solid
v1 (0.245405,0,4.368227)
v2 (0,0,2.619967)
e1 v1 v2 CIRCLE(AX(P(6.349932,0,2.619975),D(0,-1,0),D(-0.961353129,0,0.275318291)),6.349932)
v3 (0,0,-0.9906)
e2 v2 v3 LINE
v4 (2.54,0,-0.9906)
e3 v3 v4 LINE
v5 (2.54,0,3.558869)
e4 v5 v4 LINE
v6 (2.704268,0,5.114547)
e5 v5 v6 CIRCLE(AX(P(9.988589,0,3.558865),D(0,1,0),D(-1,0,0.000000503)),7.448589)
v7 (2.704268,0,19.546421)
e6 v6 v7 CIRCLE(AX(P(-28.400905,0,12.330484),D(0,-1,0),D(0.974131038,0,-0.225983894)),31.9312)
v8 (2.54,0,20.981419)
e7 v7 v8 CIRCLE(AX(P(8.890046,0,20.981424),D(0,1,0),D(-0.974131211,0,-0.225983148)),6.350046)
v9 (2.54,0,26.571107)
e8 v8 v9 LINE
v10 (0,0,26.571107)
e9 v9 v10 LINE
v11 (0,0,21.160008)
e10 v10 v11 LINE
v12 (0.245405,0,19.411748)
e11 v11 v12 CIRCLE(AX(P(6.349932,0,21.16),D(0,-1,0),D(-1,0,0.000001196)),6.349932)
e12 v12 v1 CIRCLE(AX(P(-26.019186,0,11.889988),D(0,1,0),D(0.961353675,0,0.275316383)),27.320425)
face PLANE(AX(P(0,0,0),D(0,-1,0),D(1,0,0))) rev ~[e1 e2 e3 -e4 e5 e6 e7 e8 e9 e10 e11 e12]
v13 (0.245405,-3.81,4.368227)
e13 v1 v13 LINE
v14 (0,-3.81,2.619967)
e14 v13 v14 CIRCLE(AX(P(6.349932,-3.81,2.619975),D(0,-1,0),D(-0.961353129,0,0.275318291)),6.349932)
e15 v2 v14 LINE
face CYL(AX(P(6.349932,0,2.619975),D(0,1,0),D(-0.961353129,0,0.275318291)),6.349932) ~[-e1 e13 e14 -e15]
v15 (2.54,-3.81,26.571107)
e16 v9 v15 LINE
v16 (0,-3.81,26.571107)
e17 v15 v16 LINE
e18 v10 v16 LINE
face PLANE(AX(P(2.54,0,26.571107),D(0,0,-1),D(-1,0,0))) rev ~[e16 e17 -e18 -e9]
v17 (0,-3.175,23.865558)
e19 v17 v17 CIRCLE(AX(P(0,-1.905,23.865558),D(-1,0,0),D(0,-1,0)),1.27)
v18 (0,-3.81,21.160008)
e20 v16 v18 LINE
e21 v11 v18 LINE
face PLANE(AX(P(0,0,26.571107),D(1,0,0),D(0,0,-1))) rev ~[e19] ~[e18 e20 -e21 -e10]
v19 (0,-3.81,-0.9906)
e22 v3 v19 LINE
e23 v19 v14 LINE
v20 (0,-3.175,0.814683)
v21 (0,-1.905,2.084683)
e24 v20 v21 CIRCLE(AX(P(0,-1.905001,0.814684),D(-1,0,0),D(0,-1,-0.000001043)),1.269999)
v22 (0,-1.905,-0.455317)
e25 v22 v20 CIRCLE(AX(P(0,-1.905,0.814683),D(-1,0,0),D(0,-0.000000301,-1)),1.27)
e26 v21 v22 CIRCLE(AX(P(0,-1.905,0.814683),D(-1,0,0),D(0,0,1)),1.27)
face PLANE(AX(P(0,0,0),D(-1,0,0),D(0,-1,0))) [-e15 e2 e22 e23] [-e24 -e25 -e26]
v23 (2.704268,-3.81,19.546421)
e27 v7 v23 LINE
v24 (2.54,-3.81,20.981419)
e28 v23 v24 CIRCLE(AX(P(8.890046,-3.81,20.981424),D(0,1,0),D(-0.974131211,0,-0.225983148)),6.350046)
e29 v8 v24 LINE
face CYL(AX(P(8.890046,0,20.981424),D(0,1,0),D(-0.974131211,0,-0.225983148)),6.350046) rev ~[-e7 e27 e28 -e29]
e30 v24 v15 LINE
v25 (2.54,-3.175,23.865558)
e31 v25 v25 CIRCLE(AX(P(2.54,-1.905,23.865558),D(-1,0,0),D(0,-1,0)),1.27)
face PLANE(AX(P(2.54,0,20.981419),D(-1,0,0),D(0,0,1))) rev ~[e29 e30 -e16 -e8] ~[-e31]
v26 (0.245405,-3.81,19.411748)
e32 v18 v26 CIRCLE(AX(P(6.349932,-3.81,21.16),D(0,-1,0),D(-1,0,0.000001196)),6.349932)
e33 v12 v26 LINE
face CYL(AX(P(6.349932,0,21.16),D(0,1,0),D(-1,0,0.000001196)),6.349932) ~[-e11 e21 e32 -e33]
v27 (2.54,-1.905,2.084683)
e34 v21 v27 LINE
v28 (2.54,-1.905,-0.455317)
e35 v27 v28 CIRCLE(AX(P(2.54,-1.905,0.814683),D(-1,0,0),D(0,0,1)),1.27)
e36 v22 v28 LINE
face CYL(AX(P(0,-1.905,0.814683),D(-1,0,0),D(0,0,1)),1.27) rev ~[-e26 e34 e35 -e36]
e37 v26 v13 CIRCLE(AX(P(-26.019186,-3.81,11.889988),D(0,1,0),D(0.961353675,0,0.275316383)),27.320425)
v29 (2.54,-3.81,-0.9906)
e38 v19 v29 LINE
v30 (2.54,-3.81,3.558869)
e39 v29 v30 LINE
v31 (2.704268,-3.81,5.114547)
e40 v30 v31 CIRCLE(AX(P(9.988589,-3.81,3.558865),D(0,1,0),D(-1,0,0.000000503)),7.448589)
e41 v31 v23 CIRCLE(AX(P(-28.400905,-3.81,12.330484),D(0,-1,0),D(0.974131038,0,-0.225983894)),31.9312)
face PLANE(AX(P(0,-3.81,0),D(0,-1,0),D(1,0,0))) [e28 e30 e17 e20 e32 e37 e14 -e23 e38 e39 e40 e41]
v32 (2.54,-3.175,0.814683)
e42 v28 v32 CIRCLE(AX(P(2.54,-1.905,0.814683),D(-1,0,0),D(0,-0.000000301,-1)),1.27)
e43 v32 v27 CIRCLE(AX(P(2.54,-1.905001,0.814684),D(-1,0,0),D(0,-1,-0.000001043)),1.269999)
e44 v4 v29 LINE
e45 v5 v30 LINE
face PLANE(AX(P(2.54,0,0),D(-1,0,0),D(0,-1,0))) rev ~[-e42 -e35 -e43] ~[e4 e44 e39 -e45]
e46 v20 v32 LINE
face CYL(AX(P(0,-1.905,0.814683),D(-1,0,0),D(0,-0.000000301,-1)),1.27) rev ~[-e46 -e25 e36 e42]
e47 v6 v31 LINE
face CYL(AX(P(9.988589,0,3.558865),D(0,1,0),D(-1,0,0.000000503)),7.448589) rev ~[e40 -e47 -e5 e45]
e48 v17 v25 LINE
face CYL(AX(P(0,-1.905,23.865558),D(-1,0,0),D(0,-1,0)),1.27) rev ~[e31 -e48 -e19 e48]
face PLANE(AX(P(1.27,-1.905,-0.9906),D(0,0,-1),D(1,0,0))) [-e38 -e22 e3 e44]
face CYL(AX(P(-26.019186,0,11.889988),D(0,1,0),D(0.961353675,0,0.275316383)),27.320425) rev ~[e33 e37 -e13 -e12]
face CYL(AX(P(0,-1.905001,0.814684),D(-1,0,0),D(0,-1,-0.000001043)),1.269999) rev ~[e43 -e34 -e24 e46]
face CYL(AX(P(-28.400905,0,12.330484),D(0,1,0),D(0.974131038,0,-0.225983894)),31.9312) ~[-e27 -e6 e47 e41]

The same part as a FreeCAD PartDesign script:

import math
import FreeCAD as App
import Part
import Sketcher
Q = App.Units.Quantity


def add_polygon(sketch, points):
    """Adds a closed chain of lines whose ends are joined by coincident constraints."""
    first, n = sketch.GeometryCount, len(points)
    for a, b in zip(points, points[1:] + points[:1]):
        sketch.addGeometry(Part.LineSegment(App.Vector(*a, 0), App.Vector(*b, 0)), False)
    for i in range(n):
        sketch.addConstraint(Sketcher.Constraint("Coincident", first + i, 2, first + (i + 1) % n, 1))

doc = App.newDocument("Part")
params = doc.addObject("Spreadsheet::Sheet", "Params")
for row, (alias, value) in enumerate([
    ("sketch1_width", "0.1 in"),
    ("pad1_length", "0.15 in"),
    ("sketch2_diameter", "0.1 in"),
    ("pocket1_length", "0.42 in"),
    ("sketch3_width", "0.1 in"),
    ("sketch3_height", "0.15 in"),
    ("pad2_length", "0.039 in"),
    ("sketch4_radius", "0.0499999 in"),
    ("pocket2_length", "1 in"),
], start=1):
    params.set(f"A{row}", alias)
    params.set(f"B{row}", "=" + value)
    params.setAlias(f"B{row}", alias)

body = doc.addObject("PartDesign::Body", "Body")

sketch1 = body.newObject("Sketcher::SketchObject", "Sketch")
sketch1.AttachmentSupport = (doc.getObject("XZ_Plane"), [""])
sketch1.MapMode = "FlatFace"
sketch1.addGeometry([
    Part.LineSegment(App.Vector(0, 2.6, 0), App.Vector(0, 0, 0)),
    Part.LineSegment(App.Vector(0, 0, 0), App.Vector(2.5, 0, 0)),
    Part.LineSegment(App.Vector(2.5, 0, 0), App.Vector(2.5, 3.6, 0)),
    Part.ArcOfCircle(Part.Circle(App.Vector(10, 3.6, 0), App.Vector(0, 0, 1), 7.4), math.radians(167.94), math.radians(180)),
    Part.ArcOfCircle(Part.Circle(App.Vector(-28.4, 12.3, 0), App.Vector(0, 0, 1), 31.9), math.radians(-13), math.radians(13)),
    Part.ArcOfCircle(Part.Circle(App.Vector(8.9, 21, 0), App.Vector(0, 0, 1), 6.4), math.radians(-180), math.radians(-166.94)),
    Part.LineSegment(App.Vector(2.5, 21, 0), App.Vector(2.5, 26.6, 0)),
    Part.LineSegment(App.Vector(2.5, 26.6, 0), App.Vector(0, 26.6, 0)),
    Part.LineSegment(App.Vector(0, 26.6, 0), App.Vector(0, 21.2, 0)),
    Part.ArcOfCircle(Part.Circle(App.Vector(6.3, 21.2, 0), App.Vector(0, 0, 1), 6.3), math.radians(180), math.radians(195.98)),
    Part.ArcOfCircle(Part.Circle(App.Vector(-26, 11.9, 0), App.Vector(0, 0, 1), 27.3), math.radians(-16), math.radians(16)),
    Part.ArcOfCircle(Part.Circle(App.Vector(6.3, 2.6, 0), App.Vector(0, 0, 1), 6.3), math.radians(164.02), math.radians(180)),
], False)
sketch1.addConstraint([
    Sketcher.Constraint("Coincident", 0, 2, 1, 1),
    Sketcher.Constraint("Coincident", 1, 2, 2, 1),
    Sketcher.Constraint("Tangent", 2, 2, 3, 2),
    Sketcher.Constraint("Coincident", 3, 1, 4, 1),
    Sketcher.Constraint("Tangent", 4, 2, 5, 2),
    Sketcher.Constraint("Tangent", 5, 1, 6, 1),
    Sketcher.Constraint("Coincident", 6, 2, 7, 1),
    Sketcher.Constraint("Coincident", 7, 2, 8, 1),
    Sketcher.Constraint("Tangent", 8, 2, 9, 1),
    Sketcher.Constraint("Tangent", 9, 2, 10, 2),
    Sketcher.Constraint("Tangent", 10, 1, 11, 1),
    Sketcher.Constraint("Tangent", 11, 2, 0, 1),
    Sketcher.Constraint("Vertical", 0),
    Sketcher.Constraint("Horizontal", 1),
    Sketcher.Constraint("Vertical", 2),
    Sketcher.Constraint("Vertical", 6),
    Sketcher.Constraint("Horizontal", 7),
    Sketcher.Constraint("Vertical", 8),
    Sketcher.Constraint("Coincident", 0, 2, -1, 1),
    Sketcher.Constraint("Equal", 9, 11),
    Sketcher.Constraint("PointOnObject", 7, 2, -2),
    Sketcher.Constraint("Vertical", 3, 1, 4, 2),
    Sketcher.Constraint("Vertical", 2, 2, 5, 1),
    Sketcher.Constraint("DistanceX", 1, 1, 1, 2, Q("0.1 in")),
    Sketcher.Constraint("Radius", 4, Q("31.9312 mm")),
    Sketcher.Constraint("Radius", 3, Q("7.448589 mm")),
    Sketcher.Constraint("Radius", 9, Q("6.349932 mm")),
    Sketcher.Constraint("DistanceY", 8, 2, 8, 1, Q("5.411099 mm")),
    Sketcher.Constraint("Radius", 5, Q("6.350046 mm")),
    Sketcher.Constraint("Radius", 10, Q("27.320425 mm")),
    Sketcher.Constraint("DistanceY", 2, 1, 2, 2, Q("3.558869 mm")),
    Sketcher.Constraint("DistanceY", 6, 1, 6, 2, Q("5.589688 mm")),
    Sketcher.Constraint("DistanceY", -1, 1, 9, 3, Q("21.16 mm")),
    Sketcher.Constraint("DistanceY", 0, 2, 0, 1, Q("2.619967 mm")),
])
sketch1.setExpression("Constraints[23]", "Params.sketch1_width")
pad1 = body.newObject("PartDesign::Pad", "Pad")
pad1.Profile = sketch1
pad1.setExpression("Length", "Params.pad1_length")

sketch2 = body.newObject("Sketcher::SketchObject", "Sketch001")
sketch2.AttachmentSupport = (doc.getObject("YZ_Plane"), [""])
sketch2.MapMode = "FlatFace"
sketch2.addGeometry(Part.Circle(App.Vector(-1.9, 23.9, 0), App.Vector(0, 0, 1), 1.3), False)
sketch2.addConstraint([
    Sketcher.Constraint("Diameter", 0, Q("0.1 in")),
    Sketcher.Constraint("DistanceX", 0, 3, -1, 1, Q("0.075 in")),
    Sketcher.Constraint("DistanceY", -1, 1, 0, 3, Q("23.865558 mm")),
])
sketch2.setExpression("Constraints[0]", "Params.sketch2_diameter")
pocket1 = body.newObject("PartDesign::Pocket", "Pocket")
pocket1.Profile = sketch2
pocket1.setExpression("Length", "Params.pocket1_length")
pocket1.Reversed = True

sketch3 = body.newObject("Sketcher::SketchObject", "Sketch002")
sketch3.AttachmentSupport = (doc.getObject("XY_Plane"), [""])
sketch3.MapMode = "FlatFace"
add_polygon(sketch3, [(0, -3.8), (0, 0), (2.5, 0), (2.5, -3.8)])
sketch3.addConstraint([
    Sketcher.Constraint("Vertical", 0),
    Sketcher.Constraint("Horizontal", 1),
    Sketcher.Constraint("Vertical", 2),
    Sketcher.Constraint("Horizontal", 3),
    Sketcher.Constraint("Coincident", 0, 2, -1, 1),
    Sketcher.Constraint("DistanceX", 1, 1, 1, 2, Q("0.1 in")),
    Sketcher.Constraint("DistanceY", 0, 1, 0, 2, Q("0.15 in")),
])
sketch3.setExpression("Constraints[9]", "Params.sketch3_width")
sketch3.setExpression("Constraints[10]", "Params.sketch3_height")
pad2 = body.newObject("PartDesign::Pad", "Pad001")
pad2.Profile = sketch3
pad2.setExpression("Length", "Params.pad2_length")
pad2.Reversed = True

sketch4 = body.newObject("Sketcher::SketchObject", "Sketch003")
sketch4.AttachmentSupport = (doc.getObject("YZ_Plane"), [""])
sketch4.MapMode = "FlatFace"
sketch4.addGeometry([
    Part.ArcOfCircle(Part.Circle(App.Vector(-1.9, 0.8, 0), App.Vector(0, 0, 1), 1.3), math.radians(90), math.radians(180)),
    Part.ArcOfCircle(Part.Circle(App.Vector(-1.9, 0.8, 0), App.Vector(0, 0, 1), 1.3), math.radians(-90), math.radians(90)),
    Part.ArcOfCircle(Part.Circle(App.Vector(-1.9, 0.8, 0), App.Vector(0, 0, 1), 1.3), math.radians(-180), math.radians(-90)),
], False)
sketch4.addConstraint([
    Sketcher.Constraint("Tangent", 0, 1, 1, 2),
    Sketcher.Constraint("Tangent", 1, 1, 2, 2),
    Sketcher.Constraint("Tangent", 2, 1, 0, 2),
    Sketcher.Constraint("Horizontal", 1, 3, 2, 1),
    Sketcher.Constraint("Vertical", 2, 3, 0, 1),
    Sketcher.Constraint("Vertical", 0, 1, 1, 1),
    Sketcher.Constraint("Radius", 0, Q("0.0499999 in")),
    Sketcher.Constraint("DistanceX", 0, 3, -1, 1, Q("0.0750001 in")),
    Sketcher.Constraint("DistanceY", -1, 1, 0, 3, Q("0.814684 mm")),
])
sketch4.setExpression("Constraints[6]", "Params.sketch4_radius")
pocket2 = body.newObject("PartDesign::Pocket", "Pocket001")
pocket2.Profile = sketch4
pocket2.setExpression("Length", "Params.pocket2_length")
pocket2.Reversed = True

doc.recompute()
